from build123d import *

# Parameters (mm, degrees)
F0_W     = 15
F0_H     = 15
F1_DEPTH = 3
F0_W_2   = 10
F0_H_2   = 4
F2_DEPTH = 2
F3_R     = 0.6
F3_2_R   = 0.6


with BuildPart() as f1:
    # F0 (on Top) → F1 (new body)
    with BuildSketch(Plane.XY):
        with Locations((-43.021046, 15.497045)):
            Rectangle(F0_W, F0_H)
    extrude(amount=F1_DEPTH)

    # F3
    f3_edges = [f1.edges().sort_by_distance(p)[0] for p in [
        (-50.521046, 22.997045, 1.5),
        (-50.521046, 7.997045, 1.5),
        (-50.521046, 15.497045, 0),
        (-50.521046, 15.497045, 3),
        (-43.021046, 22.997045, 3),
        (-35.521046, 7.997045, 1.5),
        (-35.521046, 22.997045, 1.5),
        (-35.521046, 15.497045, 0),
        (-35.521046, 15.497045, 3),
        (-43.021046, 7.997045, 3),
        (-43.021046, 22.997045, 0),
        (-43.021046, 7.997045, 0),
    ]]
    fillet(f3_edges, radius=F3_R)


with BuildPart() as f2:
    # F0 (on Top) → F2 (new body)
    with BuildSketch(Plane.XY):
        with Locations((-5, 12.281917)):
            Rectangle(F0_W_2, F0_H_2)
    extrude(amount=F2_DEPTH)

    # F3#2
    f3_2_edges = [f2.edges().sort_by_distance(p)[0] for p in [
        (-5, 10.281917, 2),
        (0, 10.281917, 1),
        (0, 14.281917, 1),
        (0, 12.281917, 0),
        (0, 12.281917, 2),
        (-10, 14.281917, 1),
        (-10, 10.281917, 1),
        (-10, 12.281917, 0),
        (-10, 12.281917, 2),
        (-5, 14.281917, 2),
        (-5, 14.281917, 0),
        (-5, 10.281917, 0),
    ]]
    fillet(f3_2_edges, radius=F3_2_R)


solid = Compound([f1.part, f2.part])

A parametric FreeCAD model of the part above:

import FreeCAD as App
import Part
import Sketcher
from FreeCAD import Vector
Q = App.Units.Quantity

doc = App.newDocument("Part")
body = doc.addObject("PartDesign::Body", "Body")

# Sketch on XY plane
sketch1 = doc.addObject("Sketcher::SketchObject", "Sketch")
body.addObject(sketch1)
sketch1.AttachmentSupport = (doc.XY_Plane, [""])
sketch1.MapMode = "FlatFace"
sketch1.addGeometry([
    Part.LineSegment(Vector(-51, 23, 0), Vector(-51, 8, 0)),
    Part.LineSegment(Vector(-51, 8, 0), Vector(-36, 8, 0)),
    Part.LineSegment(Vector(-36, 8, 0), Vector(-36, 23, 0)),
    Part.LineSegment(Vector(-36, 23, 0), Vector(-51, 23, 0)),
], False)
sketch1.addConstraint([
    Sketcher.Constraint("Coincident", 0, 2, 1, 1),
    Sketcher.Constraint("Coincident", 1, 2, 2, 1),
    Sketcher.Constraint("Coincident", 2, 2, 3, 1),
    Sketcher.Constraint("Coincident", 3, 2, 0, 1),
    Sketcher.Constraint("Vertical", 0),
    Sketcher.Constraint("Horizontal", 1),
    Sketcher.Constraint("Vertical", 2),
    Sketcher.Constraint("Horizontal", 3),
    Sketcher.Constraint("Equal", 3, 0),
    Sketcher.Constraint("DistanceX", 1, 1, 1, 2, Q("15 mm")),
    Sketcher.Constraint("DistanceX", 0, 2, -1, 1, Q("50.521046 mm")),
    Sketcher.Constraint("DistanceY", -1, 1, 0, 2, Q("7.997045 mm")),
])
pad1 = doc.addObject("PartDesign::Pad", "Pad")
body.addObject(pad1)
pad1.Profile = sketch1
pad1.Length = 3
doc.recompute()

fillet = doc.addObject("PartDesign::Fillet", "Fillet")
body.addObject(fillet)
fillet.Base = (pad1, ["Edge1"])
fillet.UseAllEdges = True
fillet.Radius = 0.6
body2 = doc.addObject("PartDesign::Body", "Body001")

# Sketch on XY plane
sketch2 = doc.addObject("Sketcher::SketchObject", "Sketch001")
body2.addObject(sketch2)
sketch2.AttachmentSupport = (doc.getObject("XY_Plane001"), [""])
sketch2.MapMode = "FlatFace"
sketch2.addGeometry([
    Part.LineSegment(Vector(-10, 14.3, 0), Vector(-10, 10.3, 0)),
    Part.LineSegment(Vector(-10, 10.3, 0), Vector(0, 10.3, 0)),
    Part.LineSegment(Vector(0, 10.3, 0), Vector(0, 14.3, 0)),
    Part.LineSegment(Vector(0, 14.3, 0), Vector(-10, 14.3, 0)),
], False)
sketch2.addConstraint([
    Sketcher.Constraint("Coincident", 0, 2, 1, 1),
    Sketcher.Constraint("Coincident", 1, 2, 2, 1),
    Sketcher.Constraint("Coincident", 2, 2, 3, 1),
    Sketcher.Constraint("Coincident", 3, 2, 0, 1),
    Sketcher.Constraint("Vertical", 0),
    Sketcher.Constraint("Horizontal", 1),
    Sketcher.Constraint("Vertical", 2),
    Sketcher.Constraint("Horizontal", 3),
    Sketcher.Constraint("PointOnObject", 1, 2, -2),
    Sketcher.Constraint("DistanceX", 1, 1, 1, 2, Q("10 mm")),
    Sketcher.Constraint("DistanceY", 0, 2, 0, 1, Q("4 mm")),
    Sketcher.Constraint("DistanceY", -1, 1, 0, 2, Q("10.281917 mm")),
])
pad2 = doc.addObject("PartDesign::Pad", "Pad001")
body2.addObject(pad2)
pad2.Profile = sketch2
pad2.Length = 2
doc.recompute()

fillet2 = doc.addObject("PartDesign::Fillet", "Fillet001")
body2.addObject(fillet2)
fillet2.Base = (pad2, ["Edge1"])
fillet2.UseAllEdges = True
fillet2.Radius = 0.6

doc.recompute()
